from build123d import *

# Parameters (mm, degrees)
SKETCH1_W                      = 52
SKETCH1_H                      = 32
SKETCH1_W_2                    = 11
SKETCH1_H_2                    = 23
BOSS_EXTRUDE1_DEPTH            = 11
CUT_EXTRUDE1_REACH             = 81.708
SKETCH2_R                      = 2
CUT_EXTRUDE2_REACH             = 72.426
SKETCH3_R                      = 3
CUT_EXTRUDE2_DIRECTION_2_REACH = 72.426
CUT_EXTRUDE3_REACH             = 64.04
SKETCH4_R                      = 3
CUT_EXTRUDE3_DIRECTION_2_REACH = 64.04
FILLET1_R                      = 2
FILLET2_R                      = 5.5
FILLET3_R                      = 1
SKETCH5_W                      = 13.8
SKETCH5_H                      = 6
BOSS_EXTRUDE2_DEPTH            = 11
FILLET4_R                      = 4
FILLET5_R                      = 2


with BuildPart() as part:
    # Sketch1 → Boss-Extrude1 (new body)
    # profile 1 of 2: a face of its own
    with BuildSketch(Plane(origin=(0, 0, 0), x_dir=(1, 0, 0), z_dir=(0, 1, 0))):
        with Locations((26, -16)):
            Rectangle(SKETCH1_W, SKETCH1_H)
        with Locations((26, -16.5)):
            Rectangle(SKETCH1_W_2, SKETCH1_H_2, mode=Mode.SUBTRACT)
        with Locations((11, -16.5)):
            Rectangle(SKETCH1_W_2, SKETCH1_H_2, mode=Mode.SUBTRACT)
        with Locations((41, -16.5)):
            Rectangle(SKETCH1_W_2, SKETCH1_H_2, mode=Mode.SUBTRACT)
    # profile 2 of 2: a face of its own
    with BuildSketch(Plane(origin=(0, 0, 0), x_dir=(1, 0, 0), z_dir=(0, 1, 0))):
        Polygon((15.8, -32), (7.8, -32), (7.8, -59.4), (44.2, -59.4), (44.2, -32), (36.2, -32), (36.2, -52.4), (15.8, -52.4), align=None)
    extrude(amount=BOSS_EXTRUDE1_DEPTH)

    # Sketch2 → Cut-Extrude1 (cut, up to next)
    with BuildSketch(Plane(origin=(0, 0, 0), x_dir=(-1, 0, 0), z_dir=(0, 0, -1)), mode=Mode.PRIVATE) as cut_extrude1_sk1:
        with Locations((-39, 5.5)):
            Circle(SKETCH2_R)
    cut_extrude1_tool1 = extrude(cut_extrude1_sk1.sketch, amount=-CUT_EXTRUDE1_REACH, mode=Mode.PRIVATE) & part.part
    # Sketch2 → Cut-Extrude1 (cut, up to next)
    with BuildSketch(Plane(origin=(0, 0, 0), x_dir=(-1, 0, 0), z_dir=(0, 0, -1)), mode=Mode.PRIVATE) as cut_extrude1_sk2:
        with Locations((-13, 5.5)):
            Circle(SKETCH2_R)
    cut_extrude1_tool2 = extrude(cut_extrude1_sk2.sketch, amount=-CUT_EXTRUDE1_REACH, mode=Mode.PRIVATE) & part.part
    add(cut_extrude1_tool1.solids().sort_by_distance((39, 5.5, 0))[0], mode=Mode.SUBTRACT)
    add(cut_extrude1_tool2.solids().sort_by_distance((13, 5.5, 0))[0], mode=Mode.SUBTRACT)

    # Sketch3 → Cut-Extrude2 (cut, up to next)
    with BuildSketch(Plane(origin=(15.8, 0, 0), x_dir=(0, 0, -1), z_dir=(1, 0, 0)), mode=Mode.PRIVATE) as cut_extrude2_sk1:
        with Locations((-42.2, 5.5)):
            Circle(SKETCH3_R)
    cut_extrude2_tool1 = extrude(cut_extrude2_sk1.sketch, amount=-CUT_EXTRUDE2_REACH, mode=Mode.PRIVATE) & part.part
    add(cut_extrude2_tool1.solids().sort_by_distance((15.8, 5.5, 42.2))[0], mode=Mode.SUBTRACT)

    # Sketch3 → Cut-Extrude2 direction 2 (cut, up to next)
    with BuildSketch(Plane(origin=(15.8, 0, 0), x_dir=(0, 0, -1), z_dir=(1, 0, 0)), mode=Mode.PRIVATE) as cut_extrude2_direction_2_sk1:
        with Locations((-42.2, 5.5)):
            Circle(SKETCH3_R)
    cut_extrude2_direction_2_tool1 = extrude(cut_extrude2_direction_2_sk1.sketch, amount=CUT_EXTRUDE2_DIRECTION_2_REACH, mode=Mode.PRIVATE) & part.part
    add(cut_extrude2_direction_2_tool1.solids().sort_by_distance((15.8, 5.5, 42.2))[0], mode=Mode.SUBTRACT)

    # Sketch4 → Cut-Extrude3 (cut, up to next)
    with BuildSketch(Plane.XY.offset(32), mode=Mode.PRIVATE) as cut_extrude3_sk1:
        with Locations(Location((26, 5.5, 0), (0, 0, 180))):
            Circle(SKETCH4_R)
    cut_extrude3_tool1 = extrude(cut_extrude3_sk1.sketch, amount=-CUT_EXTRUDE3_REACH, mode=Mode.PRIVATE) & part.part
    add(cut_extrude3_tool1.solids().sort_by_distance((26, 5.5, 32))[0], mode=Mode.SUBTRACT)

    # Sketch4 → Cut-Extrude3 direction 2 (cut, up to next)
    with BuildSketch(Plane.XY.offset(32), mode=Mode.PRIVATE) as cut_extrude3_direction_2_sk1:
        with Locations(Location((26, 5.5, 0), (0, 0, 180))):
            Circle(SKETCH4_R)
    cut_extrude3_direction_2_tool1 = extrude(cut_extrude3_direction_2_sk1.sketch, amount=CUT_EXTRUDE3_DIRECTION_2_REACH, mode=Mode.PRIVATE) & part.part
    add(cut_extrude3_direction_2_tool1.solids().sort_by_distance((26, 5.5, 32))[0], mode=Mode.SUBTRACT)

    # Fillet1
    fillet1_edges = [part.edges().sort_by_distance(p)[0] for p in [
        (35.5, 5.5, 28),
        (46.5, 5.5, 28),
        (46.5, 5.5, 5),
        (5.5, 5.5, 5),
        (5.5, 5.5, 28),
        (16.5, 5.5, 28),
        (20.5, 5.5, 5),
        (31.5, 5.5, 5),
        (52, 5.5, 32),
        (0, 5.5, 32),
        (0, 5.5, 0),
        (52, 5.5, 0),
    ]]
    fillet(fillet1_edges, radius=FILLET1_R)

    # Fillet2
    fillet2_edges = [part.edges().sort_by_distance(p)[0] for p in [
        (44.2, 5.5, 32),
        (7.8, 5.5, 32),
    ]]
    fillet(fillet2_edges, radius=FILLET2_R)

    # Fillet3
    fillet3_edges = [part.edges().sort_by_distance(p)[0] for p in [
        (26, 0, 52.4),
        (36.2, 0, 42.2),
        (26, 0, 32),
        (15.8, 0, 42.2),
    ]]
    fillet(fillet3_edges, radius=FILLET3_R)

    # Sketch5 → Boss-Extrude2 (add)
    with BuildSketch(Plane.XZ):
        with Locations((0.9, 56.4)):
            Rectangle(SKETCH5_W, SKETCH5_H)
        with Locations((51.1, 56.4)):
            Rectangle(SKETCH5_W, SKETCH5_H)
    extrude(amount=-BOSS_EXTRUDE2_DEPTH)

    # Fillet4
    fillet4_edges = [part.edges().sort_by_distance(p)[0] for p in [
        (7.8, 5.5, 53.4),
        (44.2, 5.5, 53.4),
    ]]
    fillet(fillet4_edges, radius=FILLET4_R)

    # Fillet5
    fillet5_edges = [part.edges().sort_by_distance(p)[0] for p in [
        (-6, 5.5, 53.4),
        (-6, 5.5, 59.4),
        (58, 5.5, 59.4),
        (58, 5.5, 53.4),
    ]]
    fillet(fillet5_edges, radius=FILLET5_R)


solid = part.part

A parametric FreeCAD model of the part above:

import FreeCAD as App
import Part
import Sketcher
Q = App.Units.Quantity


def edges_at(feature, points):
    """Names of the edges that pass closest to the given points."""
    edges = feature.Shape.Edges
    near = lambda p: min(range(len(edges)), key=lambda i: edges[i].distToShape(Part.Vertex(*p))[0])
    return sorted({f"Edge{near(p) + 1}" for p in points})

doc = App.newDocument("Part")
body = doc.addObject("PartDesign::Body", "Body")

# Sketch on XZ plane
sketch1 = doc.addObject("Sketcher::SketchObject", "Sketch")
body.addObject(sketch1)
sketch1.AttachmentSupport = (doc.XZ_Plane, [""])
sketch1.MapMode = "FlatFace"
sketch1.addGeometry(Part.LineSegment(App.Vector(0, 0, 0), App.Vector(0, 32, 0)), False)
sketch1.addGeometry(Part.LineSegment(App.Vector(0, 32, 0), App.Vector(7.8, 32, 0)), False)
sketch1.addGeometry(Part.LineSegment(App.Vector(7.8, 32, 0), App.Vector(7.8, 59.4, 0)), False)
sketch1.addGeometry(Part.LineSegment(App.Vector(7.8, 59.4, 0), App.Vector(44.2, 59.4, 0)), False)
sketch1.addGeometry(Part.LineSegment(App.Vector(44.2, 59.4, 0), App.Vector(44.2, 32, 0)), False)
sketch1.addGeometry(Part.LineSegment(App.Vector(44.2, 32, 0), App.Vector(52, 32, 0)), False)
sketch1.addGeometry(Part.LineSegment(App.Vector(52, 32, 0), App.Vector(52, 0, 0)), False)
sketch1.addGeometry(Part.LineSegment(App.Vector(52, 0, 0), App.Vector(0, 0, 0)), False)
sketch1.addGeometry(Part.LineSegment(App.Vector(15.8, 32, 0), App.Vector(36.2, 32, 0)), False)
sketch1.addGeometry(Part.LineSegment(App.Vector(36.2, 32, 0), App.Vector(36.2, 52.4, 0)), False)
sketch1.addGeometry(Part.LineSegment(App.Vector(36.2, 52.4, 0), App.Vector(15.8, 52.4, 0)), False)
sketch1.addGeometry(Part.LineSegment(App.Vector(15.8, 52.4, 0), App.Vector(15.8, 32, 0)), False)
sketch1.addGeometry(Part.LineSegment(App.Vector(16.5, 28, 0), App.Vector(5.5, 28, 0)), False)
sketch1.addGeometry(Part.LineSegment(App.Vector(5.5, 28, 0), App.Vector(5.5, 5, 0)), False)
sketch1.addGeometry(Part.LineSegment(App.Vector(5.5, 5, 0), App.Vector(16.5, 5, 0)), False)
sketch1.addGeometry(Part.LineSegment(App.Vector(16.5, 5, 0), App.Vector(16.5, 28, 0)), False)
sketch1.addGeometry(Part.LineSegment(App.Vector(31.5, 28, 0), App.Vector(20.5, 28, 0)), False)
sketch1.addGeometry(Part.LineSegment(App.Vector(20.5, 28, 0), App.Vector(20.5, 5, 0)), False)
sketch1.addGeometry(Part.LineSegment(App.Vector(20.5, 5, 0), App.Vector(31.5, 5, 0)), False)
sketch1.addGeometry(Part.LineSegment(App.Vector(31.5, 5, 0), App.Vector(31.5, 28, 0)), False)
sketch1.addGeometry(Part.LineSegment(App.Vector(46.5, 28, 0), App.Vector(35.5, 28, 0)), False)
sketch1.addGeometry(Part.LineSegment(App.Vector(35.5, 28, 0), App.Vector(35.5, 5, 0)), False)
sketch1.addGeometry(Part.LineSegment(App.Vector(35.5, 5, 0), App.Vector(46.5, 5, 0)), False)
sketch1.addGeometry(Part.LineSegment(App.Vector(46.5, 5, 0), App.Vector(46.5, 28, 0)), False)
sketch1.addConstraint(Sketcher.Constraint("Coincident", 0, 2, 1, 1))
sketch1.addConstraint(Sketcher.Constraint("Coincident", 1, 2, 2, 1))
sketch1.addConstraint(Sketcher.Constraint("Coincident", 2, 2, 3, 1))
sketch1.addConstraint(Sketcher.Constraint("Coincident", 3, 2, 4, 1))
sketch1.addConstraint(Sketcher.Constraint("Coincident", 4, 2, 5, 1))
sketch1.addConstraint(Sketcher.Constraint("Coincident", 5, 2, 6, 1))
sketch1.addConstraint(Sketcher.Constraint("Coincident", 6, 2, 7, 1))
sketch1.addConstraint(Sketcher.Constraint("Coincident", 7, 2, 0, 1))
sketch1.addConstraint(Sketcher.Constraint("Coincident", 8, 2, 9, 1))
sketch1.addConstraint(Sketcher.Constraint("Coincident", 9, 2, 10, 1))
sketch1.addConstraint(Sketcher.Constraint("Coincident", 10, 2, 11, 1))
sketch1.addConstraint(Sketcher.Constraint("Coincident", 11, 2, 8, 1))
sketch1.addConstraint(Sketcher.Constraint("Coincident", 12, 2, 13, 1))
sketch1.addConstraint(Sketcher.Constraint("Coincident", 13, 2, 14, 1))
sketch1.addConstraint(Sketcher.Constraint("Coincident", 14, 2, 15, 1))
sketch1.addConstraint(Sketcher.Constraint("Coincident", 15, 2, 12, 1))
sketch1.addConstraint(Sketcher.Constraint("Coincident", 16, 2, 17, 1))
sketch1.addConstraint(Sketcher.Constraint("Coincident", 17, 2, 18, 1))
sketch1.addConstraint(Sketcher.Constraint("Coincident", 18, 2, 19, 1))
sketch1.addConstraint(Sketcher.Constraint("Coincident", 19, 2, 16, 1))
sketch1.addConstraint(Sketcher.Constraint("Coincident", 20, 2, 21, 1))
sketch1.addConstraint(Sketcher.Constraint("Coincident", 21, 2, 22, 1))
sketch1.addConstraint(Sketcher.Constraint("Coincident", 22, 2, 23, 1))
sketch1.addConstraint(Sketcher.Constraint("Coincident", 23, 2, 20, 1))
sketch1.addConstraint(Sketcher.Constraint("Vertical", 0))
sketch1.addConstraint(Sketcher.Constraint("Horizontal", 1))
sketch1.addConstraint(Sketcher.Constraint("Vertical", 2))
sketch1.addConstraint(Sketcher.Constraint("Horizontal", 3))
sketch1.addConstraint(Sketcher.Constraint("Vertical", 4))
sketch1.addConstraint(Sketcher.Constraint("Horizontal", 5))
sketch1.addConstraint(Sketcher.Constraint("Vertical", 6))
sketch1.addConstraint(Sketcher.Constraint("Horizontal", 7))
sketch1.addConstraint(Sketcher.Constraint("Horizontal", 8))
sketch1.addConstraint(Sketcher.Constraint("Vertical", 9))
sketch1.addConstraint(Sketcher.Constraint("Horizontal", 10))
sketch1.addConstraint(Sketcher.Constraint("Vertical", 11))
sketch1.addConstraint(Sketcher.Constraint("Horizontal", 12))
sketch1.addConstraint(Sketcher.Constraint("Vertical", 13))
sketch1.addConstraint(Sketcher.Constraint("Horizontal", 14))
sketch1.addConstraint(Sketcher.Constraint("Vertical", 15))
sketch1.addConstraint(Sketcher.Constraint("Horizontal", 16))
sketch1.addConstraint(Sketcher.Constraint("Vertical", 17))
sketch1.addConstraint(Sketcher.Constraint("Horizontal", 18))
sketch1.addConstraint(Sketcher.Constraint("Vertical", 19))
sketch1.addConstraint(Sketcher.Constraint("Horizontal", 20))
sketch1.addConstraint(Sketcher.Constraint("Vertical", 21))
sketch1.addConstraint(Sketcher.Constraint("Horizontal", 22))
sketch1.addConstraint(Sketcher.Constraint("Vertical", 23))
sketch1.addConstraint(Sketcher.Constraint("Coincident", 7, 2, -1, 1))
sketch1.addConstraint(Sketcher.Constraint("Horizontal", 1, 2, 4, 2))
sketch1.addConstraint(Sketcher.Constraint("Horizontal", 5, 2, 8, 2))
sketch1.addConstraint(Sketcher.Constraint("Horizontal", 15, 2, 16, 2))
sketch1.addConstraint(Sketcher.Constraint("Horizontal", 14, 2, 17, 2))
sketch1.addConstraint(Sketcher.Constraint("Horizontal", 19, 2, 20, 2))
sketch1.addConstraint(Sketcher.Constraint("Horizontal", 18, 2, 21, 2))
sketch1.addConstraint(Sketcher.Constraint("Equal", 1, 5))
sketch1.addConstraint(Sketcher.Constraint("Equal", 14, 16))
sketch1.addConstraint(Sketcher.Constraint("Equal", 18, 20))
sketch1.addConstraint(Sketcher.Constraint("Equal", 10, 9))
sketch1.addConstraint(Sketcher.Constraint("DistanceX", 7, 2, 7, 1, Q("52 mm")))
sketch1.addConstraint(Sketcher.Constraint("DistanceX", 12, 2, 12, 1, Q("11 mm")))
sketch1.addConstraint(Sketcher.Constraint("DistanceY", 0, 1, 0, 2, Q("32 mm")))
sketch1.addConstraint(Sketcher.Constraint("DistanceY", 13, 2, 13, 1, Q("23 mm")))
sketch1.addConstraint(Sketcher.Constraint("DistanceX", 1, 1, 1, 2, Q("7.8 mm")))
sketch1.addConstraint(Sketcher.Constraint("DistanceX", 8, 1, 8, 2, Q("20.4 mm")))
sketch1.addConstraint(Sketcher.Constraint("DistanceY", 2, 1, 2, 2, Q("27.4 mm")))
sketch1.addConstraint(Sketcher.Constraint("DistanceY", -1, 1, 12, 2, Q("28 mm")))
sketch1.addConstraint(Sketcher.Constraint("DistanceX", 8, 2, 4, 2, Q("8 mm")))
sketch1.addConstraint(Sketcher.Constraint("DistanceX", 15, 2, 16, 2, Q("4 mm")))
sketch1.addConstraint(Sketcher.Constraint("DistanceX", 19, 2, 20, 2, Q("4 mm")))
sketch1.addConstraint(Sketcher.Constraint("DistanceX", -1, 1, 12, 2, Q("5.5 mm")))
pad1 = doc.addObject("PartDesign::Pad", "Pad")
body.addObject(pad1)
pad1.Profile = sketch1
pad1.Length = 11
pad1.Reversed = True

# Sketch on XY plane
sketch2 = doc.addObject("Sketcher::SketchObject", "Sketch001")
body.addObject(sketch2)
sketch2.AttachmentSupport = (doc.XY_Plane, [""])
sketch2.MapMode = "FlatFace"
sketch2.addGeometry(Part.Circle(App.Vector(39, 5.5, 0), App.Vector(0, 0, 1), 2), False)
sketch2.addConstraint(Sketcher.Constraint("Diameter", 0, Q("4 mm")))
sketch2.addConstraint(Sketcher.Constraint("DistanceX", -1, 1, 0, 3, Q("39 mm")))
sketch2.addConstraint(Sketcher.Constraint("DistanceY", -1, 1, 0, 3, Q("5.5 mm")))
pocket1 = doc.addObject("PartDesign::Pocket", "Pocket")
body.addObject(pocket1)
pocket1.Profile = sketch2
pocket1.Type = "UpToFirst"
pocket1.Reversed = True

# Sketch on XY plane
sketch3 = doc.addObject("Sketcher::SketchObject", "Sketch002")
body.addObject(sketch3)
sketch3.AttachmentSupport = (doc.XY_Plane, [""])
sketch3.MapMode = "FlatFace"
sketch3.addGeometry(Part.Circle(App.Vector(13, 5.5, 0), App.Vector(0, 0, 1), 2), False)
sketch3.addConstraint(Sketcher.Constraint("Diameter", 0, Q("4 mm")))
sketch3.addConstraint(Sketcher.Constraint("DistanceX", -1, 1, 0, 3, Q("13 mm")))
sketch3.addConstraint(Sketcher.Constraint("DistanceY", -1, 1, 0, 3, Q("5.5 mm")))
pocket2 = doc.addObject("PartDesign::Pocket", "Pocket001")
body.addObject(pocket2)
pocket2.Profile = sketch3
pocket2.Type = "UpToFirst"
pocket2.Reversed = True

# Sketch on YZ plane
sketch4 = doc.addObject("Sketcher::SketchObject", "Sketch003")
body.addObject(sketch4)
sketch4.AttachmentSupport = (doc.YZ_Plane, [""])
sketch4.MapMode = "FlatFace"
sketch4.AttachmentOffset = App.Placement(App.Vector(0, 0, 15.8), App.Rotation())
sketch4.addGeometry(Part.Circle(App.Vector(5.5, 42.2, 0), App.Vector(0, 0, 1), 3), False)
sketch4.addConstraint(Sketcher.Constraint("Diameter", 0, Q("6 mm")))
sketch4.addConstraint(Sketcher.Constraint("DistanceX", -1, 1, 0, 3, Q("5.5 mm")))
sketch4.addConstraint(Sketcher.Constraint("DistanceY", -1, 1, 0, 3, Q("42.2 mm")))
pocket3 = doc.addObject("PartDesign::Pocket", "Pocket002")
body.addObject(pocket3)
pocket3.Profile = sketch4
pocket3.Type = "UpToFirst"

# Sketch on YZ plane
sketch5 = doc.addObject("Sketcher::SketchObject", "Sketch004")
body.addObject(sketch5)
sketch5.AttachmentSupport = (doc.YZ_Plane, [""])
sketch5.MapMode = "FlatFace"
sketch5.AttachmentOffset = App.Placement(App.Vector(0, 0, 15.8), App.Rotation())
sketch5.addGeometry(Part.Circle(App.Vector(5.5, 42.2, 0), App.Vector(0, 0, 1), 3), False)
sketch5.addConstraint(Sketcher.Constraint("Diameter", 0, Q("6 mm")))
sketch5.addConstraint(Sketcher.Constraint("DistanceX", -1, 1, 0, 3, Q("5.5 mm")))
sketch5.addConstraint(Sketcher.Constraint("DistanceY", -1, 1, 0, 3, Q("42.2 mm")))
pocket4 = doc.addObject("PartDesign::Pocket", "Pocket003")
body.addObject(pocket4)
pocket4.Profile = sketch5
pocket4.Length = 28.4
pocket4.Reversed = True

# Sketch on XY plane
sketch6 = doc.addObject("Sketcher::SketchObject", "Sketch005")
body.addObject(sketch6)
sketch6.AttachmentSupport = (doc.XY_Plane, [""])
sketch6.MapMode = "FlatFace"
sketch6.AttachmentOffset = App.Placement(App.Vector(0, 0, 32), App.Rotation())
sketch6.addGeometry(Part.Circle(App.Vector(26, 5.5, 0), App.Vector(0, 0, 1), 3), False)
sketch6.addConstraint(Sketcher.Constraint("Diameter", 0, Q("6 mm")))
sketch6.addConstraint(Sketcher.Constraint("DistanceX", -1, 1, 0, 3, Q("26 mm")))
sketch6.addConstraint(Sketcher.Constraint("DistanceY", -1, 1, 0, 3, Q("5.5 mm")))
pocket5 = doc.addObject("PartDesign::Pocket", "Pocket004")
body.addObject(pocket5)
pocket5.Profile = sketch6
pocket5.Type = "UpToFirst"

# Sketch on XY plane
sketch7 = doc.addObject("Sketcher::SketchObject", "Sketch006")
body.addObject(sketch7)
sketch7.AttachmentSupport = (doc.XY_Plane, [""])
sketch7.MapMode = "FlatFace"
sketch7.AttachmentOffset = App.Placement(App.Vector(0, 0, 32), App.Rotation())
sketch7.addGeometry(Part.Circle(App.Vector(26, 5.5, 0), App.Vector(0, 0, 1), 3), False)
sketch7.addConstraint(Sketcher.Constraint("Diameter", 0, Q("6 mm")))
sketch7.addConstraint(Sketcher.Constraint("DistanceX", -1, 1, 0, 3, Q("26 mm")))
sketch7.addConstraint(Sketcher.Constraint("DistanceY", -1, 1, 0, 3, Q("5.5 mm")))
pocket6 = doc.addObject("PartDesign::Pocket", "Pocket005")
body.addObject(pocket6)
pocket6.Profile = sketch7
pocket6.Length = 27.4
pocket6.Reversed = True
doc.recompute()

fillet = doc.addObject("PartDesign::Fillet", "Fillet")
body.addObject(fillet)
fillet.Base = (pocket6, edges_at(pocket6, [
    (35.5, 5.5, 28),
    (46.5, 5.5, 28),
    (46.5, 5.5, 5),
    (5.5, 5.5, 5),
    (5.5, 5.5, 28),
    (16.5, 5.5, 28),
    (20.5, 5.5, 5),
    (31.5, 5.5, 5),
    (52, 5.5, 32),
    (0, 5.5, 32),
    (0, 5.5, 0),
    (52, 5.5, 0),
]))
fillet.Radius = 2
doc.recompute()

fillet2 = doc.addObject("PartDesign::Fillet", "Fillet001")
body.addObject(fillet2)
fillet2.Base = (fillet, edges_at(fillet, [(44.2, 5.5, 32), (7.8, 5.5, 32)]))
fillet2.Radius = 5.5
doc.recompute()

fillet3 = doc.addObject("PartDesign::Fillet", "Fillet002")
body.addObject(fillet3)
fillet3.Base = (fillet2, edges_at(fillet2, [
    (26, 0, 52.4),
    (36.2, 0, 42.2),
    (26, 0, 32),
    (15.8, 0, 42.2),
]))
fillet3.Radius = 1

# Sketch on XZ plane
sketch8 = doc.addObject("Sketcher::SketchObject", "Sketch007")
body.addObject(sketch8)
sketch8.AttachmentSupport = (doc.XZ_Plane, [""])
sketch8.MapMode = "FlatFace"
sketch8.addGeometry(Part.LineSegment(App.Vector(-6, 59.4, 0), App.Vector(-6, 53.4, 0)), False)
sketch8.addGeometry(Part.LineSegment(App.Vector(-6, 53.4, 0), App.Vector(7.8, 53.4, 0)), False)
sketch8.addGeometry(Part.LineSegment(App.Vector(7.8, 53.4, 0), App.Vector(7.8, 59.4, 0)), False)
sketch8.addGeometry(Part.LineSegment(App.Vector(7.8, 59.4, 0), App.Vector(-6, 59.4, 0)), False)
sketch8.addGeometry(Part.LineSegment(App.Vector(44.2, 59.4, 0), App.Vector(44.2, 53.4, 0)), False)
sketch8.addGeometry(Part.LineSegment(App.Vector(44.2, 53.4, 0), App.Vector(58, 53.4, 0)), False)
sketch8.addGeometry(Part.LineSegment(App.Vector(58, 53.4, 0), App.Vector(58, 59.4, 0)), False)
sketch8.addGeometry(Part.LineSegment(App.Vector(58, 59.4, 0), App.Vector(44.2, 59.4, 0)), False)
sketch8.addConstraint(Sketcher.Constraint("Coincident", 0, 2, 1, 1))
sketch8.addConstraint(Sketcher.Constraint("Coincident", 1, 2, 2, 1))
sketch8.addConstraint(Sketcher.Constraint("Coincident", 2, 2, 3, 1))
sketch8.addConstraint(Sketcher.Constraint("Coincident", 3, 2, 0, 1))
sketch8.addConstraint(Sketcher.Constraint("Coincident", 4, 2, 5, 1))
sketch8.addConstraint(Sketcher.Constraint("Coincident", 5, 2, 6, 1))
sketch8.addConstraint(Sketcher.Constraint("Coincident", 6, 2, 7, 1))
sketch8.addConstraint(Sketcher.Constraint("Coincident", 7, 2, 4, 1))
sketch8.addConstraint(Sketcher.Constraint("Vertical", 0))
sketch8.addConstraint(Sketcher.Constraint("Horizontal", 1))
sketch8.addConstraint(Sketcher.Constraint("Vertical", 2))
sketch8.addConstraint(Sketcher.Constraint("Horizontal", 3))
sketch8.addConstraint(Sketcher.Constraint("Vertical", 4))
sketch8.addConstraint(Sketcher.Constraint("Horizontal", 5))
sketch8.addConstraint(Sketcher.Constraint("Vertical", 6))
sketch8.addConstraint(Sketcher.Constraint("Horizontal", 7))
sketch8.addConstraint(Sketcher.Constraint("Horizontal", 1, 2, 4, 2))
sketch8.addConstraint(Sketcher.Constraint("Horizontal", 3, 2, 6, 2))
sketch8.addConstraint(Sketcher.Constraint("Equal", 3, 5))
sketch8.addConstraint(Sketcher.Constraint("DistanceY", 0, 2, 0, 1, Q("6 mm")))
sketch8.addConstraint(Sketcher.Constraint("DistanceX", 1, 1, 1, 2, Q("13.8 mm")))
sketch8.addConstraint(Sketcher.Constraint("DistanceX", 0, 2, -1, 1, Q("6 mm")))
sketch8.addConstraint(Sketcher.Constraint("DistanceX", -1, 1, 5, 2, Q("58 mm")))
sketch8.addConstraint(Sketcher.Constraint("DistanceY", -1, 1, 0, 2, Q("53.4 mm")))
pad2 = doc.addObject("PartDesign::Pad", "Pad001")
body.addObject(pad2)
pad2.Profile = sketch8
pad2.Length = 11
pad2.Reversed = True
doc.recompute()

fillet4 = doc.addObject("PartDesign::Fillet", "Fillet003")
body.addObject(fillet4)
fillet4.Base = (pad2, edges_at(pad2, [(7.8, 5.5, 53.4), (44.2, 5.5, 53.4)]))
fillet4.Radius = 4
doc.recompute()

fillet5 = doc.addObject("PartDesign::Fillet", "Fillet004")
body.addObject(fillet5)
fillet5.Base = (fillet4, edges_at(fillet4, [
    (-6, 5.5, 53.4),
    (-6, 5.5, 59.4),
    (58, 5.5, 59.4),
    (58, 5.5, 53.4),
]))
fillet5.Radius = 2

doc.recompute()
